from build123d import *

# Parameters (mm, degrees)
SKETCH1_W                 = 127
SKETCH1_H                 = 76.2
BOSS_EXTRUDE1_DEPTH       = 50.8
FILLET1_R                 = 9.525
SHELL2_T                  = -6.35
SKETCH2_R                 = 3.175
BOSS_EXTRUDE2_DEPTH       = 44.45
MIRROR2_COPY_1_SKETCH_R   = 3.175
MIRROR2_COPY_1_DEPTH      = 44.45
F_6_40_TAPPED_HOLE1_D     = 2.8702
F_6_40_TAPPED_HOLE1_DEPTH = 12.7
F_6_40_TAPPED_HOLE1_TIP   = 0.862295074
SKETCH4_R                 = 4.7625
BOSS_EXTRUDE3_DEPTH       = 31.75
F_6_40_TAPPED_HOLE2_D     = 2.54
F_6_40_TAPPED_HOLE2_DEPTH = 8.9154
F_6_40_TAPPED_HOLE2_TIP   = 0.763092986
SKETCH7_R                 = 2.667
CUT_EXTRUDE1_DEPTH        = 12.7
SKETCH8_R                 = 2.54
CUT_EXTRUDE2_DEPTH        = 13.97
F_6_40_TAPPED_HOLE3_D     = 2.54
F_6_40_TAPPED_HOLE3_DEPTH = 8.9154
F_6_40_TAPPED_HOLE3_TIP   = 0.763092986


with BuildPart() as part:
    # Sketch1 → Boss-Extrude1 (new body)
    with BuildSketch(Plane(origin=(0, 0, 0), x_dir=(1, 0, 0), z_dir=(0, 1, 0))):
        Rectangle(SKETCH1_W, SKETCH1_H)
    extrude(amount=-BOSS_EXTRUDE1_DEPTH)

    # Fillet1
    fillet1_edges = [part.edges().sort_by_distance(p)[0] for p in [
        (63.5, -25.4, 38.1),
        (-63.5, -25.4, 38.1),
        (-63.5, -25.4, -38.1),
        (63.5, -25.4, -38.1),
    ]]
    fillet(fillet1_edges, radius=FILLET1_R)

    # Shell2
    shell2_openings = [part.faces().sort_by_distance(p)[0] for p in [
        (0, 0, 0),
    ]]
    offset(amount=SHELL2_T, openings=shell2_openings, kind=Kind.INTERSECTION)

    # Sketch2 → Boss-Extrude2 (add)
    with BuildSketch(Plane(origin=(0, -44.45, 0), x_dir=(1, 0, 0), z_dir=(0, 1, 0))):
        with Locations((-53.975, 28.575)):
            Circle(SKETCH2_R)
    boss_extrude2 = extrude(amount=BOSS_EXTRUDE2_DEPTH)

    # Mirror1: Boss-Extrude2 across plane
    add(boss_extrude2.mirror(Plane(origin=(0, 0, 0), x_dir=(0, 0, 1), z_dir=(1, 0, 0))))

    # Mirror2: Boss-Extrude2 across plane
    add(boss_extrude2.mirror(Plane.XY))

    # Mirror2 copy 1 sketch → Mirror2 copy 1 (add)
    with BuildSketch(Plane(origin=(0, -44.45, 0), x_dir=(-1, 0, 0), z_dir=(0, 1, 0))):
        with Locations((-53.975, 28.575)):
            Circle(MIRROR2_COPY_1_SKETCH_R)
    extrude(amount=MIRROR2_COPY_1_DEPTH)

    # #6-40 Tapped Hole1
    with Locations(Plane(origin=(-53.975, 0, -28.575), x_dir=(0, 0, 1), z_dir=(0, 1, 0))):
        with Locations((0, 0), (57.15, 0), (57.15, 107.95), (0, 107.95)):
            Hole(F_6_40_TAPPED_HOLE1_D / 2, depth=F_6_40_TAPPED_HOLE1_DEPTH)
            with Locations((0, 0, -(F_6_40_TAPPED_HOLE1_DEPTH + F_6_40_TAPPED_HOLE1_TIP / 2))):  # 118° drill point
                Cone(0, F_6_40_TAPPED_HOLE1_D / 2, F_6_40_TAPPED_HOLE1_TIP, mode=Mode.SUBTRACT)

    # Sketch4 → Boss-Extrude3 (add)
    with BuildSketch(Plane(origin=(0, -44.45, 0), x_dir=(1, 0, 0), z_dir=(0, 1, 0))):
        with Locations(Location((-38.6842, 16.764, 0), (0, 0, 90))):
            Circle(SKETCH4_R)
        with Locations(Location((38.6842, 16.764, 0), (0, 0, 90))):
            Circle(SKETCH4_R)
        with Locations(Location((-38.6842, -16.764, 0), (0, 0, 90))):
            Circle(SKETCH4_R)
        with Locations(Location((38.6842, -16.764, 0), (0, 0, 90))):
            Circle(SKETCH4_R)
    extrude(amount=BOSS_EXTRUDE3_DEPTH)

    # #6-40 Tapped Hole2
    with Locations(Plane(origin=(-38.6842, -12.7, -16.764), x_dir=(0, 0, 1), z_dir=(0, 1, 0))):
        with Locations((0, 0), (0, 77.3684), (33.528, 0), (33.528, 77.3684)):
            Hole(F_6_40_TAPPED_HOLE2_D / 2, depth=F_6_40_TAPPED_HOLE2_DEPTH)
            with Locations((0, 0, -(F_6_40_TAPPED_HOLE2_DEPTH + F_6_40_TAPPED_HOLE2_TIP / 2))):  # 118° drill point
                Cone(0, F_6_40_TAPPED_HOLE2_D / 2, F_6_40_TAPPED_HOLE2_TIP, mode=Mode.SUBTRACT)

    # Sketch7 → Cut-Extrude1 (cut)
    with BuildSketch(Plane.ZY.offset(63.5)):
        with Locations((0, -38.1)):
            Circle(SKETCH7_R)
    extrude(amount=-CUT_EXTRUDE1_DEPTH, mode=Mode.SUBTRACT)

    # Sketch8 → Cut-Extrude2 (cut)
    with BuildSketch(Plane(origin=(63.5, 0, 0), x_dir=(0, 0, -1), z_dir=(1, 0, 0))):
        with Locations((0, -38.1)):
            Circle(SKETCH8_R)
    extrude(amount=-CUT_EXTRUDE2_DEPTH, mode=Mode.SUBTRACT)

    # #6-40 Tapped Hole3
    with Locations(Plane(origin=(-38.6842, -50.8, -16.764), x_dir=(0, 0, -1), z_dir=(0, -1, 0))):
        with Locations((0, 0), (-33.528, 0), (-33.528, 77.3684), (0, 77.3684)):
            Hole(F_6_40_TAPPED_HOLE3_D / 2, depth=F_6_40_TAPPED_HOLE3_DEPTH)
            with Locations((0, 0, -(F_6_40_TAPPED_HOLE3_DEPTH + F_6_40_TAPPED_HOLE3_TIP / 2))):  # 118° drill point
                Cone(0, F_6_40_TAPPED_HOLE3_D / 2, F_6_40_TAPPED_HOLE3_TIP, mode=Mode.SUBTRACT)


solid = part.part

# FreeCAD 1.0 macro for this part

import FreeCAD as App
import Part
import Sketcher
Q = App.Units.Quantity


def edges_at(feature, points):
    """Names of the edges that pass closest to the given points."""
    edges = feature.Shape.Edges
    near = lambda p: min(range(len(edges)), key=lambda i: edges[i].distToShape(Part.Vertex(*p))[0])
    return sorted({f"Edge{near(p) + 1}" for p in points})


def faces_at(feature, points):
    """Names of the faces that lie closest to the given points."""
    faces = feature.Shape.Faces
    near = lambda p: min(range(len(faces)), key=lambda i: faces[i].distToShape(Part.Vertex(*p))[0])
    return sorted({f"Face{near(p) + 1}" for p in points})

doc = App.newDocument("Part")
params = doc.addObject("Spreadsheet::Sheet", "Params")
for row, (alias, value) in enumerate([
    ("sketch1_width", "5 in"),
    ("sketch1_height", "3 in"),
    ("pad1_length", "2 in"),
    ("fillet_radius", "0.375 in"),
    ("thickness_wall", "0.25 in"),
    ("sketch2_diameter", "0.25 in"),
    ("pad2_length", "1.75 in"),
    ("sketch3_diameter", "0.25 in"),
    ("pad3_length", "1.75 in"),
    ("sketch4_diameter", "0.113 in"),
    ("hole_diameter", "0.113 in"),
    ("hole_depth", "0.5 in"),
    ("sketch5_diameter", "0.375 in"),
    ("pad4_length", "1.25 in"),
    ("sketch6_diameter", "0.1 in"),
    ("hole2_diameter", "0.1 in"),
    ("hole2_depth", "0.351 in"),
    ("sketch7_diameter", "0.21 in"),
    ("pocket1_length", "0.5 in"),
    ("sketch8_diameter", "0.2 in"),
    ("pocket2_length", "0.55 in"),
    ("sketch9_diameter", "0.1 in"),
    ("hole3_diameter", "0.1 in"),
    ("hole3_depth", "0.351 in"),
], start=1):
    params.set(f"A{row}", alias)
    params.set(f"B{row}", "=" + value)
    params.setAlias(f"B{row}", alias)

body = doc.addObject("PartDesign::Body", "Body")

# Sketch on XZ plane
sketch1 = body.newObject("Sketcher::SketchObject", "Sketch")
sketch1.AttachmentSupport = (doc.getObject("XZ_Plane"), [""])
sketch1.MapMode = "FlatFace"
sketch1.addGeometry([
    Part.LineSegment(App.Vector(-63.5, -38.1, 0), App.Vector(-63.5, 38.1, 0)),
    Part.LineSegment(App.Vector(-63.5, 38.1, 0), App.Vector(63.5, 38.1, 0)),
    Part.LineSegment(App.Vector(63.5, 38.1, 0), App.Vector(63.5, -38.1, 0)),
    Part.LineSegment(App.Vector(63.5, -38.1, 0), App.Vector(-63.5, -38.1, 0)),
], False)
sketch1.addConstraint([
    Sketcher.Constraint("Coincident", 0, 2, 1, 1),
    Sketcher.Constraint("Coincident", 1, 2, 2, 1),
    Sketcher.Constraint("Coincident", 2, 2, 3, 1),
    Sketcher.Constraint("Coincident", 3, 2, 0, 1),
    Sketcher.Constraint("Vertical", 0),
    Sketcher.Constraint("Horizontal", 1),
    Sketcher.Constraint("Vertical", 2),
    Sketcher.Constraint("Horizontal", 3),
    Sketcher.Constraint("Symmetric", 0, 2, 2, 2, -1, 1),
    Sketcher.Constraint("DistanceX", 1, 1, 1, 2, Q("5 in")),
    Sketcher.Constraint("DistanceY", 0, 1, 0, 2, Q("3 in")),
])
sketch1.setExpression("Constraints[9]", "Params.sketch1_width")
sketch1.setExpression("Constraints[10]", "Params.sketch1_height")
pad1 = body.newObject("PartDesign::Pad", "Pad")
pad1.Profile = sketch1
pad1.setExpression("Length", "Params.pad1_length")
doc.recompute()

fillet = body.newObject("PartDesign::Fillet", "Fillet")
fillet.Base = (pad1, edges_at(pad1, [
    (63.5, -25.4, 38.1),
    (-63.5, -25.4, 38.1),
    (-63.5, -25.4, -38.1),
    (63.5, -25.4, -38.1),
]))
fillet.setExpression("Radius", "Params.fillet_radius")
doc.recompute()

thickness = body.newObject("PartDesign::Thickness", "Thickness")
thickness.Base = (fillet, faces_at(fillet, [(0, 0, 0)]))
thickness.setExpression("Value", "Params.thickness_wall")
thickness.Reversed = True
thickness.Join = "Intersection"

# Sketch on XZ plane
sketch2 = body.newObject("Sketcher::SketchObject", "Sketch001")
sketch2.AttachmentSupport = (doc.getObject("XZ_Plane"), [""])
sketch2.MapMode = "FlatFace"
sketch2.AttachmentOffset = App.Placement(App.Vector(0, 0, 1.75 * 25.4), App.Rotation())
sketch2.addGeometry(Part.Circle(App.Vector(-53.975, -28.575, 0), App.Vector(0, 0, 1), 3.175), False)
sketch2.addConstraint([
    Sketcher.Constraint("Diameter", 0, Q("0.25 in")),
    Sketcher.Constraint("DistanceX", 0, 3, -1, 1, Q("2.125 in")),
    Sketcher.Constraint("DistanceY", 0, 3, -1, 1, Q("1.125 in")),
])
sketch2.setExpression("Constraints[0]", "Params.sketch2_diameter")
pad2 = body.newObject("PartDesign::Pad", "Pad001")
pad2.Profile = sketch2
pad2.setExpression("Length", "Params.pad2_length")
pad2.Reversed = True
doc.recompute()

mirrored = body.newObject("PartDesign::Mirrored", "Mirrored")
mirrored.Originals = [pad2]
mirrored.MirrorPlane = (doc.getObject("YZ_Plane"), [""])
body.Tip = mirrored
doc.recompute()

mirrored2 = body.newObject("PartDesign::Mirrored", "Mirrored001")
mirrored2.Originals = [pad2]
mirrored2.MirrorPlane = (doc.getObject("XY_Plane"), [""])
body.Tip = mirrored2

# Sketch on XZ plane
sketch3 = body.newObject("Sketcher::SketchObject", "Sketch002")
sketch3.AttachmentSupport = (doc.getObject("XZ_Plane"), [""])
sketch3.MapMode = "FlatFace"
sketch3.AttachmentOffset = App.Placement(App.Vector(0, 0, 1.75 * 25.4), App.Rotation())
sketch3.addGeometry(Part.Circle(App.Vector(53.975, 28.575, 0), App.Vector(0, 0, 1), 3.175), False)
sketch3.addConstraint([
    Sketcher.Constraint("Diameter", 0, Q("0.25 in")),
    Sketcher.Constraint("DistanceX", -1, 1, 0, 3, Q("2.125 in")),
    Sketcher.Constraint("DistanceY", -1, 1, 0, 3, Q("1.125 in")),
])
sketch3.setExpression("Constraints[0]", "Params.sketch3_diameter")
pad3 = body.newObject("PartDesign::Pad", "Pad002")
pad3.Profile = sketch3
pad3.setExpression("Length", "Params.pad3_length")
pad3.Reversed = True

# Sketch on XZ plane
sketch4 = body.newObject("Sketcher::SketchObject", "Sketch003")
sketch4.AttachmentSupport = (doc.getObject("XZ_Plane"), [""])
sketch4.MapMode = "FlatFace"
sketch4.addGeometry([
    Part.Circle(App.Vector(-53.975, -28.575, 0), App.Vector(0, 0, 1), 1.4351),
    Part.Circle(App.Vector(-53.975, 28.575, 0), App.Vector(0, 0, 1), 1.4351),
    Part.Circle(App.Vector(53.975, 28.575, 0), App.Vector(0, 0, 1), 1.4351),
    Part.Circle(App.Vector(53.975, -28.575, 0), App.Vector(0, 0, 1), 1.4351),
], False)
sketch4.addConstraint([
    Sketcher.Constraint("Equal", 0, 1),
    Sketcher.Constraint("Equal", 1, 2),
    Sketcher.Constraint("Equal", 2, 3),
    Sketcher.Constraint("Symmetric", 0, 3, 2, 3, -1, 1),
    Sketcher.Constraint("Symmetric", 1, 3, 3, 3, -1, 1),
    Sketcher.Constraint("Symmetric", 1, 3, 2, 3, -2),
    Sketcher.Constraint("Diameter", 0, Q("0.113 in")),
    Sketcher.Constraint("DistanceY", 0, 3, 1, 3, Q("2.25 in")),
    Sketcher.Constraint("DistanceX", 1, 3, 2, 3, Q("4.25 in")),
])
sketch4.setExpression("Constraints[6]", "Params.sketch4_diameter")
doc.recompute()
hole = body.newObject("PartDesign::Hole", "Hole")
hole.Profile = sketch4
hole.ThreadType = "None"
hole.setExpression("Diameter", "Params.hole_diameter")
hole.DepthType = "Dimension"
hole.setExpression("Depth", "Params.hole_depth")
hole.DrillPoint = "Angled"
hole.DrillPointAngle = 118
hole.Reversed = True

# Sketch on XZ plane
sketch5 = body.newObject("Sketcher::SketchObject", "Sketch004")
sketch5.AttachmentSupport = (doc.getObject("XZ_Plane"), [""])
sketch5.MapMode = "FlatFace"
sketch5.AttachmentOffset = App.Placement(App.Vector(0, 0, 1.75 * 25.4), App.Rotation())
sketch5.addGeometry([
    Part.Circle(App.Vector(-38.6842, -16.764, 0), App.Vector(0, 0, 1), 4.7625),
    Part.Circle(App.Vector(38.6842, -16.764, 0), App.Vector(0, 0, 1), 4.7625),
    Part.Circle(App.Vector(-38.6842, 16.764, 0), App.Vector(0, 0, 1), 4.7625),
    Part.Circle(App.Vector(38.6842, 16.764, 0), App.Vector(0, 0, 1), 4.7625),
], False)
sketch5.addConstraint([
    Sketcher.Constraint("Equal", 0, 1),
    Sketcher.Constraint("Equal", 1, 2),
    Sketcher.Constraint("Equal", 2, 3),
    Sketcher.Constraint("Symmetric", 1, 3, 2, 3, -1, 1),
    Sketcher.Constraint("Symmetric", 0, 3, 3, 3, -1, 1),
    Sketcher.Constraint("Symmetric", 0, 3, 1, 3, -2),
    Sketcher.Constraint("Diameter", 0, Q("0.375 in")),
    Sketcher.Constraint("DistanceY", 0, 3, -1, 1, Q("0.66 in")),
    Sketcher.Constraint("DistanceX", 0, 3, -1, 1, Q("1.523 in")),
])
sketch5.setExpression("Constraints[6]", "Params.sketch5_diameter")
pad4 = body.newObject("PartDesign::Pad", "Pad003")
pad4.Profile = sketch5
pad4.setExpression("Length", "Params.pad4_length")
pad4.Reversed = True

# Sketch on XZ plane
sketch6 = body.newObject("Sketcher::SketchObject", "Sketch005")
sketch6.AttachmentSupport = (doc.getObject("XZ_Plane"), [""])
sketch6.MapMode = "FlatFace"
sketch6.AttachmentOffset = App.Placement(App.Vector(0, 0, 0.5 * 25.4), App.Rotation())
sketch6.addGeometry([
    Part.Circle(App.Vector(-38.6842, -16.764, 0), App.Vector(0, 0, 1), 1.27),
    Part.Circle(App.Vector(38.6842, -16.764, 0), App.Vector(0, 0, 1), 1.27),
    Part.Circle(App.Vector(-38.6842, 16.764, 0), App.Vector(0, 0, 1), 1.27),
    Part.Circle(App.Vector(38.6842, 16.764, 0), App.Vector(0, 0, 1), 1.27),
], False)
sketch6.addConstraint([
    Sketcher.Constraint("Equal", 0, 1),
    Sketcher.Constraint("Equal", 1, 2),
    Sketcher.Constraint("Equal", 2, 3),
    Sketcher.Constraint("Symmetric", 1, 3, 2, 3, -1, 1),
    Sketcher.Constraint("Symmetric", 0, 3, 3, 3, -1, 1),
    Sketcher.Constraint("Symmetric", 0, 3, 1, 3, -2),
    Sketcher.Constraint("Diameter", 0, Q("0.1 in")),
    Sketcher.Constraint("DistanceY", 0, 3, -1, 1, Q("0.66 in")),
    Sketcher.Constraint("DistanceX", 0, 3, -1, 1, Q("1.523 in")),
])
sketch6.setExpression("Constraints[6]", "Params.sketch6_diameter")
doc.recompute()
hole2 = body.newObject("PartDesign::Hole", "Hole001")
hole2.Profile = sketch6
hole2.ThreadType = "None"
hole2.setExpression("Diameter", "Params.hole2_diameter")
hole2.DepthType = "Dimension"
hole2.setExpression("Depth", "Params.hole2_depth")
hole2.DrillPoint = "Angled"
hole2.DrillPointAngle = 118
hole2.Reversed = True

# Sketch on YZ plane
sketch7 = body.newObject("Sketcher::SketchObject", "Sketch006")
sketch7.AttachmentSupport = (doc.getObject("YZ_Plane"), [""])
sketch7.MapMode = "FlatFace"
sketch7.AttachmentOffset = App.Placement(App.Vector(0, 0, -2.5 * 25.4), App.Rotation())
sketch7.addGeometry(Part.Circle(App.Vector(-38.1, 0, 0), App.Vector(0, 0, 1), 2.667), False)
sketch7.addConstraint([
    Sketcher.Constraint("PointOnObject", 0, 3, -1),
    Sketcher.Constraint("Diameter", 0, Q("0.21 in")),
    Sketcher.Constraint("DistanceX", 0, 3, -1, 1, Q("1.5 in")),
])
sketch7.setExpression("Constraints[1]", "Params.sketch7_diameter")
pocket1 = body.newObject("PartDesign::Pocket", "Pocket")
pocket1.Profile = sketch7
pocket1.setExpression("Length", "Params.pocket1_length")
pocket1.Reversed = True

# Sketch on YZ plane
sketch8 = body.newObject("Sketcher::SketchObject", "Sketch007")
sketch8.AttachmentSupport = (doc.getObject("YZ_Plane"), [""])
sketch8.MapMode = "FlatFace"
sketch8.AttachmentOffset = App.Placement(App.Vector(0, 0, 2.5 * 25.4), App.Rotation())
sketch8.addGeometry(Part.Circle(App.Vector(-38.1, 0, 0), App.Vector(0, 0, 1), 2.54), False)
sketch8.addConstraint([
    Sketcher.Constraint("PointOnObject", 0, 3, -1),
    Sketcher.Constraint("Diameter", 0, Q("0.2 in")),
    Sketcher.Constraint("DistanceX", 0, 3, -1, 1, Q("1.5 in")),
])
sketch8.setExpression("Constraints[1]", "Params.sketch8_diameter")
pocket2 = body.newObject("PartDesign::Pocket", "Pocket001")
pocket2.Profile = sketch8
pocket2.setExpression("Length", "Params.pocket2_length")

# Sketch on XZ plane
sketch9 = body.newObject("Sketcher::SketchObject", "Sketch008")
sketch9.AttachmentSupport = (doc.getObject("XZ_Plane"), [""])
sketch9.MapMode = "FlatFace"
sketch9.AttachmentOffset = App.Placement(App.Vector(0, 0, 2 * 25.4), App.Rotation())
sketch9.addGeometry([
    Part.Circle(App.Vector(-38.6842, -16.764, 0), App.Vector(0, 0, 1), 1.27),
    Part.Circle(App.Vector(-38.6842, 16.764, 0), App.Vector(0, 0, 1), 1.27),
    Part.Circle(App.Vector(38.6842, 16.764, 0), App.Vector(0, 0, 1), 1.27),
    Part.Circle(App.Vector(38.6842, -16.764, 0), App.Vector(0, 0, 1), 1.27),
], False)
sketch9.addConstraint([
    Sketcher.Constraint("Equal", 0, 1),
    Sketcher.Constraint("Equal", 1, 2),
    Sketcher.Constraint("Equal", 2, 3),
    Sketcher.Constraint("Symmetric", 0, 3, 2, 3, -1, 1),
    Sketcher.Constraint("Symmetric", 1, 3, 3, 3, -1, 1),
    Sketcher.Constraint("Symmetric", 1, 3, 2, 3, -2),
    Sketcher.Constraint("Diameter", 0, Q("0.1 in")),
    Sketcher.Constraint("DistanceY", 0, 3, -1, 1, Q("0.66 in")),
    Sketcher.Constraint("DistanceX", 0, 3, -1, 1, Q("1.523 in")),
])
sketch9.setExpression("Constraints[6]", "Params.sketch9_diameter")
doc.recompute()
hole3 = body.newObject("PartDesign::Hole", "Hole002")
hole3.Profile = sketch9
hole3.ThreadType = "None"
hole3.setExpression("Diameter", "Params.hole3_diameter")
hole3.DepthType = "Dimension"
hole3.setExpression("Depth", "Params.hole3_depth")
hole3.DrillPoint = "Angled"
hole3.DrillPointAngle = 118

doc.recompute()
